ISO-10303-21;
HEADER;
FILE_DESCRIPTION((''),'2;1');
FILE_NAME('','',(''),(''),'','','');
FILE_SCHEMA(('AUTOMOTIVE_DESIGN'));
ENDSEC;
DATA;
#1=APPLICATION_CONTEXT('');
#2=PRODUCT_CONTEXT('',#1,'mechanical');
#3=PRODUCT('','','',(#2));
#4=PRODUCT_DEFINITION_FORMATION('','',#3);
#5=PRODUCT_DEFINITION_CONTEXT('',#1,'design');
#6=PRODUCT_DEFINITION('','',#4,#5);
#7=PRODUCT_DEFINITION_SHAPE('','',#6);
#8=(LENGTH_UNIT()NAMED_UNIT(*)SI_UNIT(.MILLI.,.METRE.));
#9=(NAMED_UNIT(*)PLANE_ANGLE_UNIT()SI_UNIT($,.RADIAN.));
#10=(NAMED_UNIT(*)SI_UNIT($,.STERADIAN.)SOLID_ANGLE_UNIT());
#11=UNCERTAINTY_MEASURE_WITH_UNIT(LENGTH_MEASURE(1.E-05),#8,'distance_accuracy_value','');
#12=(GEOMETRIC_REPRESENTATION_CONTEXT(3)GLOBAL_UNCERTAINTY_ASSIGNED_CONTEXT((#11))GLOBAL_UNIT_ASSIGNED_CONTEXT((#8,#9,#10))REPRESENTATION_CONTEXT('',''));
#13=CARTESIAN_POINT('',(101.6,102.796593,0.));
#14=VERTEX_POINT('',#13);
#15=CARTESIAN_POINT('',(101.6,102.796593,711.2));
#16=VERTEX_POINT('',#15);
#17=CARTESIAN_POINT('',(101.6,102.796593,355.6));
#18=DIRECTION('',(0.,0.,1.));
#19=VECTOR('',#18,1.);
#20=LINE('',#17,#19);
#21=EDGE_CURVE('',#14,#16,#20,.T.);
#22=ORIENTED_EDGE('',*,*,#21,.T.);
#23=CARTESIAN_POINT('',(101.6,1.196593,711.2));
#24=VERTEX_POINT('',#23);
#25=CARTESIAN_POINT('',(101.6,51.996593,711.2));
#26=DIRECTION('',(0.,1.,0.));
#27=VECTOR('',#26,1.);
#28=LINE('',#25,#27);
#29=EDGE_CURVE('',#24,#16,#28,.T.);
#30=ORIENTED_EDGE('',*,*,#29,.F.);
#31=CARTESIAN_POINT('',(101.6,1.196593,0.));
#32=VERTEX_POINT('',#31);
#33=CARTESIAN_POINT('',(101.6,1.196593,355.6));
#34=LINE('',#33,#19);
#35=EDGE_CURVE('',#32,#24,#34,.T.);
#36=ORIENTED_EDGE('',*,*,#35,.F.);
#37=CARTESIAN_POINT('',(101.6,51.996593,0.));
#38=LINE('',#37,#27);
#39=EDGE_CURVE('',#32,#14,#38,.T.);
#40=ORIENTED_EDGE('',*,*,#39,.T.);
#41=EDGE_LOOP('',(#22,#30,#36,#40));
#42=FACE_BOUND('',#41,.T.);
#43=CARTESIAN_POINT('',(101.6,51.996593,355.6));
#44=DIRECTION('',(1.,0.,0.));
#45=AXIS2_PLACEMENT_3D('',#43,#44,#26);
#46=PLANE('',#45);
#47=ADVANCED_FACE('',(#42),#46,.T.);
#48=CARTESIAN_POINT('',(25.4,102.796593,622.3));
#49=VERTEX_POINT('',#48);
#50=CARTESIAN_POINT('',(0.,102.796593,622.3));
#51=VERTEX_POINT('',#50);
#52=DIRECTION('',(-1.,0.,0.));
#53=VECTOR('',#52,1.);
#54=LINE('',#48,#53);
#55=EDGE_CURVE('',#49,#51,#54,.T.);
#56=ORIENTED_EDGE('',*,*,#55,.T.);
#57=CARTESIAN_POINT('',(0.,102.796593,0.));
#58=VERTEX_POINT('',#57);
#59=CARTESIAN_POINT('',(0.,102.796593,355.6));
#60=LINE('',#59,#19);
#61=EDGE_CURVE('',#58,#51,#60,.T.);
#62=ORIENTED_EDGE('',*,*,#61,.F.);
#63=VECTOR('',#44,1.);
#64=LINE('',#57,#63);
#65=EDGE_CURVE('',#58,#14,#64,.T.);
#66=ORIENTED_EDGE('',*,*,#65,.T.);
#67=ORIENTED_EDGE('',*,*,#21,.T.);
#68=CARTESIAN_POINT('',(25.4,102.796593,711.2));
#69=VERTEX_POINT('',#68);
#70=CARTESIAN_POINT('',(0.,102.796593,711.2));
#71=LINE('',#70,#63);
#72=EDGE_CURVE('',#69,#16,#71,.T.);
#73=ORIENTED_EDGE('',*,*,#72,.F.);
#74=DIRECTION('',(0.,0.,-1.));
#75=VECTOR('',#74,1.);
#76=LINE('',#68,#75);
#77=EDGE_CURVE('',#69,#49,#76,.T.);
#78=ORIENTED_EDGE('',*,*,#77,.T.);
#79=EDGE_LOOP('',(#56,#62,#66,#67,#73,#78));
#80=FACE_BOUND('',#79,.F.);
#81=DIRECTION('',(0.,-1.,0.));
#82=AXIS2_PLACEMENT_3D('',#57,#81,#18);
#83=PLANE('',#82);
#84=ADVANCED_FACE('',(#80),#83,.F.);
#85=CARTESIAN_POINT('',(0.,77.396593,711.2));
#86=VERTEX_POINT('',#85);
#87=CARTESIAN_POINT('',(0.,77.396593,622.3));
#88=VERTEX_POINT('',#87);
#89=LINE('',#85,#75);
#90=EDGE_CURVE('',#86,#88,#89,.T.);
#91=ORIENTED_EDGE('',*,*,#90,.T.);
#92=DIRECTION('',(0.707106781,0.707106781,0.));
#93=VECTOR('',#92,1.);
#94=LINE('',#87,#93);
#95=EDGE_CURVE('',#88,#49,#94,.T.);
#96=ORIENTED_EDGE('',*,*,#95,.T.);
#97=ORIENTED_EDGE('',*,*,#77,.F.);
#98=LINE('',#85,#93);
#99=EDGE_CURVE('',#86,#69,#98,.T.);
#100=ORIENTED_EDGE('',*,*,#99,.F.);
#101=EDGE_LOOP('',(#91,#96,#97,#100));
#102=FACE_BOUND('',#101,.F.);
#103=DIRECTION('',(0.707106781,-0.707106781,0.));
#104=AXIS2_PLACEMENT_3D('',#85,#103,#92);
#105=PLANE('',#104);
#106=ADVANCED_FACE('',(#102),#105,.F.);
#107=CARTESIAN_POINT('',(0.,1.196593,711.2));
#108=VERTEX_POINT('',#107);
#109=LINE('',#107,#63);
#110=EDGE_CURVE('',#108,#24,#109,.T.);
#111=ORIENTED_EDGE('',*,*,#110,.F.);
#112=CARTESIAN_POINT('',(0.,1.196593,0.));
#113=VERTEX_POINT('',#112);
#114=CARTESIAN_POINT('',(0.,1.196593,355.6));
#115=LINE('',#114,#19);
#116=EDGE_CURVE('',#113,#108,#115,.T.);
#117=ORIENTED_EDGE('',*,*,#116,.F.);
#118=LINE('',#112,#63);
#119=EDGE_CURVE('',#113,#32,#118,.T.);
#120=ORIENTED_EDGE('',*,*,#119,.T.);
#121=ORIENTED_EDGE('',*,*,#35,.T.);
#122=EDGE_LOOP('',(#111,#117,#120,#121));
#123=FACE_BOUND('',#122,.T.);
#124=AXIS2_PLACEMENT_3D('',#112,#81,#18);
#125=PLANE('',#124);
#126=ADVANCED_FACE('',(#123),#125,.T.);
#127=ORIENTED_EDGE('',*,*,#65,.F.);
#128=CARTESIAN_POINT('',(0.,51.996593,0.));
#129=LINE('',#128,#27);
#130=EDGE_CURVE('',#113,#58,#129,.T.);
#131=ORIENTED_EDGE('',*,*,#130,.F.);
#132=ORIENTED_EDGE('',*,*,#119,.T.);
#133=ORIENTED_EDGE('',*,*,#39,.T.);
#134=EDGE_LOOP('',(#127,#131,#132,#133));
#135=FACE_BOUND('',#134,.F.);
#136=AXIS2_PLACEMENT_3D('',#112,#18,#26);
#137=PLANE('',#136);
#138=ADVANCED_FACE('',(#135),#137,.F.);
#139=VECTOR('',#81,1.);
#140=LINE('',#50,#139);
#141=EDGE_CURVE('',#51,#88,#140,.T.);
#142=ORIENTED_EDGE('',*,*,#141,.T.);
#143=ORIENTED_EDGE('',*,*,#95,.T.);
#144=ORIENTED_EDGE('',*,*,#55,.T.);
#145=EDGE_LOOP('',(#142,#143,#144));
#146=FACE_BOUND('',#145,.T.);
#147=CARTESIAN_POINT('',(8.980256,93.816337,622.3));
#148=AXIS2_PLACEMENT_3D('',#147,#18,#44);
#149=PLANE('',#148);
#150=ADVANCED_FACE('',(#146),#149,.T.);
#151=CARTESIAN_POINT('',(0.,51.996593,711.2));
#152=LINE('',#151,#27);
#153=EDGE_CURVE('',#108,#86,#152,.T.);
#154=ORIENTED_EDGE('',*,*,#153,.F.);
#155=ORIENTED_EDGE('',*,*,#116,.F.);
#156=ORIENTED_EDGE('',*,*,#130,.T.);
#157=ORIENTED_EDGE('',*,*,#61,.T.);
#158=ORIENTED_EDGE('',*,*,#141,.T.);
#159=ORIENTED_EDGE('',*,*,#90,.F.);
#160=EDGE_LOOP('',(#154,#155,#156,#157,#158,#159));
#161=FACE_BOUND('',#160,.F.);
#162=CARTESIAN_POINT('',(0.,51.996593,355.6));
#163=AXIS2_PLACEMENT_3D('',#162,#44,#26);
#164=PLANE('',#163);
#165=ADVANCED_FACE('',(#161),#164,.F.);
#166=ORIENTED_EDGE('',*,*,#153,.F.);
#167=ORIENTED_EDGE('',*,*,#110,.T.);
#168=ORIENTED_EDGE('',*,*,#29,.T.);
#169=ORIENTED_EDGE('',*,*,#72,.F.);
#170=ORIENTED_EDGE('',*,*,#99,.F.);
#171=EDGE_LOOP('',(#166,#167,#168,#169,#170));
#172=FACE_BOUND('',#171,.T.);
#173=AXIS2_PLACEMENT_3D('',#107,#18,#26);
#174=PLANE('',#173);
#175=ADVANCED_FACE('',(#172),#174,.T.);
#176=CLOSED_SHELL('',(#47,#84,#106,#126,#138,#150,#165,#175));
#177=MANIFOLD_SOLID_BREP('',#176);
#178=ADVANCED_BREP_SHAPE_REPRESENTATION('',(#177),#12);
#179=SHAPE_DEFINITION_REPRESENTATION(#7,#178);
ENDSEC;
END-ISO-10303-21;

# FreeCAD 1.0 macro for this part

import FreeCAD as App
import Part
import Sketcher
Q = App.Units.Quantity

doc = App.newDocument("Part")
body = doc.addObject("PartDesign::Body", "Body")

sketch1 = body.newObject("Sketcher::SketchObject", "Sketch")
sketch1.AttachmentSupport = (doc.getObject("YZ_Plane"), [""])
sketch1.MapMode = "FlatFace"
sketch1.addGeometry([
    Part.LineSegment(App.Vector(1, 711, 0), App.Vector(1, 0, 0)),
    Part.LineSegment(App.Vector(1, 0, 0), App.Vector(103, 0, 0)),
    Part.LineSegment(App.Vector(103, 0, 0), App.Vector(103, 711, 0)),
    Part.LineSegment(App.Vector(103, 711, 0), App.Vector(1, 711, 0)),
], False)
sketch1.addConstraint([
    Sketcher.Constraint("Coincident", 0, 2, 1, 1),
    Sketcher.Constraint("Coincident", 1, 2, 2, 1),
    Sketcher.Constraint("Coincident", 2, 2, 3, 1),
    Sketcher.Constraint("Coincident", 3, 2, 0, 1),
    Sketcher.Constraint("Vertical", 0),
    Sketcher.Constraint("Horizontal", 1),
    Sketcher.Constraint("Vertical", 2),
    Sketcher.Constraint("Horizontal", 3),
    Sketcher.Constraint("PointOnObject", 0, 2, -1),
    Sketcher.Constraint("DistanceX", 1, 1, 1, 2, Q("4 in")),
    Sketcher.Constraint("DistanceY", 0, 2, 0, 1, Q("28 in")),
    Sketcher.Constraint("DistanceX", -1, 1, 0, 2, 1.196593),
])
pad1 = body.newObject("PartDesign::Pad", "Pad")
pad1.Profile = sketch1
pad1.Length = Q("4 in")

sketch2 = body.newObject("Sketcher::SketchObject", "Sketch001")
sketch2.AttachmentSupport = (doc.getObject("XY_Plane"), [""])
sketch2.MapMode = "FlatFace"
sketch2.AttachmentOffset = App.Placement(App.Vector(0, 0, 28 * 25.4), App.Rotation())
sketch2.addGeometry([
    Part.LineSegment(App.Vector(25, 103, 0), App.Vector(0, 103, 0)),
    Part.LineSegment(App.Vector(0, 103, 0), App.Vector(0, 77, 0)),
    Part.LineSegment(App.Vector(0, 77, 0), App.Vector(25, 103, 0)),
], False)
sketch2.addConstraint([
    Sketcher.Constraint("Coincident", 0, 2, 1, 1),
    Sketcher.Constraint("Coincident", 1, 2, 2, 1),
    Sketcher.Constraint("Coincident", 2, 2, 0, 1),
    Sketcher.Constraint("Horizontal", 0),
    Sketcher.Constraint("Vertical", 1),
    Sketcher.Constraint("PointOnObject", 0, 2, -2),
    Sketcher.Constraint("Equal", 0, 1),
    Sketcher.Constraint("DistanceX", 0, 2, 0, 1, Q("1 in")),
    Sketcher.Constraint("DistanceY", -1, 1, 0, 2, 102.796593),
])
pocket1 = body.newObject("PartDesign::Pocket", "Pocket")
pocket1.Profile = sketch2
pocket1.Length = Q("3.5 in")

doc.recompute()
